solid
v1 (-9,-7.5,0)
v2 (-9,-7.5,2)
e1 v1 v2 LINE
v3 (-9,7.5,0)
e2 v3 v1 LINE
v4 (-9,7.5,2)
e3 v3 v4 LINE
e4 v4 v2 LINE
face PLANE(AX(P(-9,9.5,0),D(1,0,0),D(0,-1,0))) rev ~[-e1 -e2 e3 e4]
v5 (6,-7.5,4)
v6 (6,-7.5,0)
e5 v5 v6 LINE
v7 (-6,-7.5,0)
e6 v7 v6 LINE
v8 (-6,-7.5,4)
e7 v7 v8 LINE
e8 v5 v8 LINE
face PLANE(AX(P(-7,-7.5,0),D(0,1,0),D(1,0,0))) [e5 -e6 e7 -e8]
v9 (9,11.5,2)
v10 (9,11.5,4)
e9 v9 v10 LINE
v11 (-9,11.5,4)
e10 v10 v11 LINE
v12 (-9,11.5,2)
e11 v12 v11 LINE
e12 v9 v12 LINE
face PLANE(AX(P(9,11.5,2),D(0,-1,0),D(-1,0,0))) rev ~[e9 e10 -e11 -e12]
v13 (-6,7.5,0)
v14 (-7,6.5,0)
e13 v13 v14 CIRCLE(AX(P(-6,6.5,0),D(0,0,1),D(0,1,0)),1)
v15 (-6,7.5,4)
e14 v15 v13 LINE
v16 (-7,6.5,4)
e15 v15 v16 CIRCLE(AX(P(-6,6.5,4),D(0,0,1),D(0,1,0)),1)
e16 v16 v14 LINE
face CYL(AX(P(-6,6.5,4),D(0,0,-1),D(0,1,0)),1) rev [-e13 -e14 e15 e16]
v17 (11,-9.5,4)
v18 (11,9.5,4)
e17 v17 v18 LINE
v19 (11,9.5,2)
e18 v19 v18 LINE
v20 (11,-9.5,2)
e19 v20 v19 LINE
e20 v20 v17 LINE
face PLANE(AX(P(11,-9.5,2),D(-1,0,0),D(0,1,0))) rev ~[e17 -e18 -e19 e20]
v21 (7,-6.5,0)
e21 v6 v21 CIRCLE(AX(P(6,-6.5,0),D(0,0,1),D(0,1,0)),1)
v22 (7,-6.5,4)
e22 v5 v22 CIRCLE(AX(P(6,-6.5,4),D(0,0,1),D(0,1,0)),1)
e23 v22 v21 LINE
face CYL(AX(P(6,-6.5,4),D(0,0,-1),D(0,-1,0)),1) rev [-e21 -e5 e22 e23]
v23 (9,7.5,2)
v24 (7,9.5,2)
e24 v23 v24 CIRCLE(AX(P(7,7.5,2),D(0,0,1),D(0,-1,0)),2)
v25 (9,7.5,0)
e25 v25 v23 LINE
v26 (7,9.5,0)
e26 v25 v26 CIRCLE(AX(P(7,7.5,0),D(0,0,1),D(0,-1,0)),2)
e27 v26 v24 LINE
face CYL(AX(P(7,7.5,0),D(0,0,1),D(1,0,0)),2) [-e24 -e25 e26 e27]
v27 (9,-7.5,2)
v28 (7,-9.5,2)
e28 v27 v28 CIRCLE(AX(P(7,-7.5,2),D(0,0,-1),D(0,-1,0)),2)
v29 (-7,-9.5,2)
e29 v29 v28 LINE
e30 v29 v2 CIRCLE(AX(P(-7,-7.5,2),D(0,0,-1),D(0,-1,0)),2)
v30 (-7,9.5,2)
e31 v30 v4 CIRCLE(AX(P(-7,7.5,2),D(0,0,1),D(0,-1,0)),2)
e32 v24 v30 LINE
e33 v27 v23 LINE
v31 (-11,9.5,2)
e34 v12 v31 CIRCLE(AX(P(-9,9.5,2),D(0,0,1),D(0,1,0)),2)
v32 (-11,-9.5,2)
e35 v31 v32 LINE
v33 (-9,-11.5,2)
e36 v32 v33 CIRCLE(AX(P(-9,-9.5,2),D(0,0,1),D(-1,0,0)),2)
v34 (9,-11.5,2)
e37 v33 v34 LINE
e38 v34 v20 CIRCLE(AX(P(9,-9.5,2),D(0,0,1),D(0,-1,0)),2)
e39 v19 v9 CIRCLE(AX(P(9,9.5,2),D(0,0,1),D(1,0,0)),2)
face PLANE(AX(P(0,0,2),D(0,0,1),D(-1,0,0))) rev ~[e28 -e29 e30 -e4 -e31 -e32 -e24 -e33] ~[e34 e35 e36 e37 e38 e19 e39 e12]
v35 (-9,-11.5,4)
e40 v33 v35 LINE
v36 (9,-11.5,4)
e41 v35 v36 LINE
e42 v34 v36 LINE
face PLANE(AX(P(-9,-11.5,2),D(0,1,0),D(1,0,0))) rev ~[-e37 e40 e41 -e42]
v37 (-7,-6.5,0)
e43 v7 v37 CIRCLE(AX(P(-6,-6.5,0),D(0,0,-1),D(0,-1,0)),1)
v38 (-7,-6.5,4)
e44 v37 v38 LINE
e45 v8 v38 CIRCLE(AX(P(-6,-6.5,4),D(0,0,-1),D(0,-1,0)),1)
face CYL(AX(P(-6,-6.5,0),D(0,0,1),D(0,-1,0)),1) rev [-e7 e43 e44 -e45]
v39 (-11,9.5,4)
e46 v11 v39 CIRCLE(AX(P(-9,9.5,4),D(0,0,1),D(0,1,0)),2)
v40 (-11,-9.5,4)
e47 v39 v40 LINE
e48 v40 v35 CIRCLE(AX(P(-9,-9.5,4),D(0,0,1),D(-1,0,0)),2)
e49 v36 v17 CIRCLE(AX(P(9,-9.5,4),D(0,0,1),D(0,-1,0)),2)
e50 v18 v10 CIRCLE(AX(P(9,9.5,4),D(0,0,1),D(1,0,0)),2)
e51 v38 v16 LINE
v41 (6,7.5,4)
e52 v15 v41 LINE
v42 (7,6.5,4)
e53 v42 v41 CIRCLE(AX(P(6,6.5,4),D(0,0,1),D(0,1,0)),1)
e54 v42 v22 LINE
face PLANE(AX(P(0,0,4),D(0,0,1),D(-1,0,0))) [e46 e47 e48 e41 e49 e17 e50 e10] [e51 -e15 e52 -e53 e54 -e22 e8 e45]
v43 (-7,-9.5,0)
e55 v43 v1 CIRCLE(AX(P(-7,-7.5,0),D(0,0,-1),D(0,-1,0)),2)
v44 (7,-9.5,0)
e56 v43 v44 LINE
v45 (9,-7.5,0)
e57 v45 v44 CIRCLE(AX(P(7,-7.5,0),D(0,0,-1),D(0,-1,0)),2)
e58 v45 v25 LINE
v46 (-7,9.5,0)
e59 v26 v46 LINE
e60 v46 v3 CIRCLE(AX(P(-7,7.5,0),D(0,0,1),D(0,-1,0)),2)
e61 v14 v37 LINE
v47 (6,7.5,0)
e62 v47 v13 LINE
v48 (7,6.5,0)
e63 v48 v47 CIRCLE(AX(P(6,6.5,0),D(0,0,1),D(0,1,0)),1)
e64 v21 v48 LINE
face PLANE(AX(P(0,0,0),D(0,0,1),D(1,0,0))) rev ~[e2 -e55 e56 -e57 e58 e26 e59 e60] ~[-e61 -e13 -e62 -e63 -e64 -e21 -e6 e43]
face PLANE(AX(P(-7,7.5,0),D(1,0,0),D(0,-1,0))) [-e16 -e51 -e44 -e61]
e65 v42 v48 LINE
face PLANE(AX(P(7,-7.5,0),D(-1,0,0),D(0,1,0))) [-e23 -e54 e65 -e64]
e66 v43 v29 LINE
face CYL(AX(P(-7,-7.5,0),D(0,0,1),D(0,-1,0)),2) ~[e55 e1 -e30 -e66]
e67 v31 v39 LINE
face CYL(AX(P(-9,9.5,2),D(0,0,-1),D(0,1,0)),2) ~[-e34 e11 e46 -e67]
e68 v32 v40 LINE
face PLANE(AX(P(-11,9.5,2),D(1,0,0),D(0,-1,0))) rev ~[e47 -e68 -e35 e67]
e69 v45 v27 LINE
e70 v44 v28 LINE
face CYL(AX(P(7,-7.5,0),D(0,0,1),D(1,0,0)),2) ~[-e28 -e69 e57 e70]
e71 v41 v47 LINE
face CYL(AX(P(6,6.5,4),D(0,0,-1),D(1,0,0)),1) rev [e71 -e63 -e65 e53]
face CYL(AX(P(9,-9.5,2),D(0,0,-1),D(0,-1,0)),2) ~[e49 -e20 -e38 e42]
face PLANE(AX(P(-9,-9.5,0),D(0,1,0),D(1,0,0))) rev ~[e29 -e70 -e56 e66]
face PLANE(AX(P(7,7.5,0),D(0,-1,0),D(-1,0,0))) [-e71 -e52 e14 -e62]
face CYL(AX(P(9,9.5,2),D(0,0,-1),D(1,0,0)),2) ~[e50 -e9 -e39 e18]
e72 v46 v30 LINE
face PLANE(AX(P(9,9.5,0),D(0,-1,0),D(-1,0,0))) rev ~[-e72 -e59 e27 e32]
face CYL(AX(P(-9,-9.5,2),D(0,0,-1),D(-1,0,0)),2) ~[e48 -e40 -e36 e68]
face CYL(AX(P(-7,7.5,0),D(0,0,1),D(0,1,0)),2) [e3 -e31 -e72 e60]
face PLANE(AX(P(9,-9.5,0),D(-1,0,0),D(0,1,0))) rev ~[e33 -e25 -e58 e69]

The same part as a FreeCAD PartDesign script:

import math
import FreeCAD as App
import Part
import Sketcher
from FreeCAD import Vector
Q = App.Units.Quantity


def edges_at(feature, points):
    """Names of the edges that pass closest to the given points."""
    edges = feature.Shape.Edges
    near = lambda p: min(range(len(edges)), key=lambda i: edges[i].distToShape(Part.Vertex(*p))[0])
    return sorted({f"Edge{near(p) + 1}" for p in points})

doc = App.newDocument("Part")
body = doc.addObject("PartDesign::Body", "Body")

sketch1 = body.newObject("Sketcher::SketchObject", "Sketch")
sketch1.AttachmentSupport = (doc.getObject("XY_Plane"), [""])
sketch1.MapMode = "FlatFace"
sketch1.addGeometry([
    Part.LineSegment(Vector(9, -10, 0), Vector(9, 10, 0)),
    Part.LineSegment(Vector(9, 10, 0), Vector(-9, 10, 0)),
    Part.LineSegment(Vector(-9, 10, 0), Vector(-9, -10, 0)),
    Part.LineSegment(Vector(-9, -10, 0), Vector(9, -10, 0)),
    Part.LineSegment(Vector(7, -8, 0), Vector(-7, -8, 0)),
    Part.LineSegment(Vector(-7, -8, 0), Vector(-7, 8, 0)),
    Part.LineSegment(Vector(-7, 8, 0), Vector(7, 8, 0)),
    Part.LineSegment(Vector(7, 8, 0), Vector(7, -8, 0)),
], False)
sketch1.addConstraint([
    Sketcher.Constraint("Coincident", 0, 2, 1, 1),
    Sketcher.Constraint("Coincident", 1, 2, 2, 1),
    Sketcher.Constraint("Coincident", 2, 2, 3, 1),
    Sketcher.Constraint("Coincident", 3, 2, 0, 1),
    Sketcher.Constraint("Coincident", 4, 2, 5, 1),
    Sketcher.Constraint("Coincident", 5, 2, 6, 1),
    Sketcher.Constraint("Coincident", 6, 2, 7, 1),
    Sketcher.Constraint("Coincident", 7, 2, 4, 1),
    Sketcher.Constraint("Vertical", 0),
    Sketcher.Constraint("Horizontal", 1),
    Sketcher.Constraint("Vertical", 2),
    Sketcher.Constraint("Horizontal", 3),
    Sketcher.Constraint("Horizontal", 4),
    Sketcher.Constraint("Vertical", 5),
    Sketcher.Constraint("Horizontal", 6),
    Sketcher.Constraint("Vertical", 7),
    Sketcher.Constraint("Symmetric", 0, 2, 2, 2, -1, 1),
    Sketcher.Constraint("Symmetric", 4, 2, 6, 2, -1, 1),
    Sketcher.Constraint("DistanceX", 1, 2, 1, 1, Q("18 mm")),
    Sketcher.Constraint("DistanceY", 0, 1, 0, 2, Q("19 mm")),
    Sketcher.Constraint("DistanceX", 2, 2, 4, 2, Q("2 mm")),
    Sketcher.Constraint("DistanceY", 2, 2, 4, 2, Q("2 mm")),
])
pad1 = body.newObject("PartDesign::Pad", "Pad")
pad1.Profile = sketch1
pad1.Length = 2

sketch2 = body.newObject("Sketcher::SketchObject", "Sketch001")
sketch2.AttachmentSupport = (doc.getObject("XY_Plane"), [""])
sketch2.MapMode = "FlatFace"
sketch2.AttachmentOffset = App.Placement(Vector(0, 0, 2), App.Rotation())
sketch2.addGeometry([
    Part.ArcOfCircle(Part.Circle(Vector(9, -9.5, 0), Vector(0, 0, 1), 2), math.radians(-90), math.radians(0)),
    Part.LineSegment(Vector(11, -9.5, 0), Vector(11, 9.5, 0)),
    Part.ArcOfCircle(Part.Circle(Vector(9, 9.5, 0), Vector(0, 0, 1), 2), math.radians(0), math.radians(90)),
    Part.LineSegment(Vector(9, 11.5, 0), Vector(-9, 11.5, 0)),
    Part.ArcOfCircle(Part.Circle(Vector(-9, 9.5, 0), Vector(0, 0, 1), 2), math.radians(90), math.radians(180)),
    Part.LineSegment(Vector(-11, 9.5, 0), Vector(-11, -9.5, 0)),
    Part.ArcOfCircle(Part.Circle(Vector(-9, -9.5, 0), Vector(0, 0, 1), 2), math.radians(180), math.radians(270)),
    Part.LineSegment(Vector(-9, -11.5, 0), Vector(9, -11.5, 0)),
    Part.LineSegment(Vector(7, -7.5, 0), Vector(-7, -7.5, 0)),
    Part.LineSegment(Vector(-7, -7.5, 0), Vector(-7, 7.5, 0)),
    Part.LineSegment(Vector(-7, 7.5, 0), Vector(7, 7.5, 0)),
    Part.LineSegment(Vector(7, 7.5, 0), Vector(7, -7.5, 0)),
], False)
sketch2.addConstraint([
    Sketcher.Constraint("Tangent", 0, 2, 1, 1),
    Sketcher.Constraint("Tangent", 1, 2, 2, 1),
    Sketcher.Constraint("Tangent", 2, 2, 3, 1),
    Sketcher.Constraint("Tangent", 3, 2, 4, 1),
    Sketcher.Constraint("Tangent", 4, 2, 5, 1),
    Sketcher.Constraint("Tangent", 5, 2, 6, 1),
    Sketcher.Constraint("Tangent", 6, 2, 7, 1),
    Sketcher.Constraint("Tangent", 7, 2, 0, 1),
    Sketcher.Constraint("Coincident", 8, 2, 9, 1),
    Sketcher.Constraint("Coincident", 9, 2, 10, 1),
    Sketcher.Constraint("Coincident", 10, 2, 11, 1),
    Sketcher.Constraint("Coincident", 11, 2, 8, 1),
    Sketcher.Constraint("Vertical", 1),
    Sketcher.Constraint("Horizontal", 3),
    Sketcher.Constraint("Vertical", 5),
    Sketcher.Constraint("Horizontal", 7),
    Sketcher.Constraint("Horizontal", 8),
    Sketcher.Constraint("Vertical", 9),
    Sketcher.Constraint("Horizontal", 10),
    Sketcher.Constraint("Vertical", 11),
    Sketcher.Constraint("Equal", 0, 2),
    Sketcher.Constraint("Equal", 2, 4),
    Sketcher.Constraint("Equal", 4, 6),
    Sketcher.Constraint("Symmetric", 0, 3, 4, 3, -1, 1),
    Sketcher.Constraint("Symmetric", 8, 2, 10, 2, -1, 1),
    Sketcher.Constraint("Radius", 0, Q("2 mm")),
    Sketcher.Constraint("DistanceX", 6, 3, 8, 2, Q("2 mm")),
    Sketcher.Constraint("DistanceY", 6, 3, 8, 2, Q("2 mm")),
    Sketcher.Constraint("DistanceX", 3, 2, 3, 1, Q("18 mm")),
    Sketcher.Constraint("DistanceY", 1, 1, 1, 2, Q("19 mm")),
])
pad2 = body.newObject("PartDesign::Pad", "Pad001")
pad2.Profile = sketch2
pad2.Length = 2
doc.recompute()

fillet = body.newObject("PartDesign::Fillet", "Fillet")
fillet.Base = (pad2, edges_at(pad2, [
    (-9, 9.5, 1),
    (-9, -9.5, 1),
    (9, 9.5, 1),
    (9, -9.5, 1),
]))
fillet.Radius = 2
doc.recompute()

fillet2 = body.newObject("PartDesign::Fillet", "Fillet001")
fillet2.Base = (fillet, edges_at(fillet, [
    (-7, 7.5, 2),
    (-7, -7.5, 2),
    (7, -7.5, 2),
    (7, 7.5, 2),
]))
fillet2.Radius = 1

doc.recompute()
